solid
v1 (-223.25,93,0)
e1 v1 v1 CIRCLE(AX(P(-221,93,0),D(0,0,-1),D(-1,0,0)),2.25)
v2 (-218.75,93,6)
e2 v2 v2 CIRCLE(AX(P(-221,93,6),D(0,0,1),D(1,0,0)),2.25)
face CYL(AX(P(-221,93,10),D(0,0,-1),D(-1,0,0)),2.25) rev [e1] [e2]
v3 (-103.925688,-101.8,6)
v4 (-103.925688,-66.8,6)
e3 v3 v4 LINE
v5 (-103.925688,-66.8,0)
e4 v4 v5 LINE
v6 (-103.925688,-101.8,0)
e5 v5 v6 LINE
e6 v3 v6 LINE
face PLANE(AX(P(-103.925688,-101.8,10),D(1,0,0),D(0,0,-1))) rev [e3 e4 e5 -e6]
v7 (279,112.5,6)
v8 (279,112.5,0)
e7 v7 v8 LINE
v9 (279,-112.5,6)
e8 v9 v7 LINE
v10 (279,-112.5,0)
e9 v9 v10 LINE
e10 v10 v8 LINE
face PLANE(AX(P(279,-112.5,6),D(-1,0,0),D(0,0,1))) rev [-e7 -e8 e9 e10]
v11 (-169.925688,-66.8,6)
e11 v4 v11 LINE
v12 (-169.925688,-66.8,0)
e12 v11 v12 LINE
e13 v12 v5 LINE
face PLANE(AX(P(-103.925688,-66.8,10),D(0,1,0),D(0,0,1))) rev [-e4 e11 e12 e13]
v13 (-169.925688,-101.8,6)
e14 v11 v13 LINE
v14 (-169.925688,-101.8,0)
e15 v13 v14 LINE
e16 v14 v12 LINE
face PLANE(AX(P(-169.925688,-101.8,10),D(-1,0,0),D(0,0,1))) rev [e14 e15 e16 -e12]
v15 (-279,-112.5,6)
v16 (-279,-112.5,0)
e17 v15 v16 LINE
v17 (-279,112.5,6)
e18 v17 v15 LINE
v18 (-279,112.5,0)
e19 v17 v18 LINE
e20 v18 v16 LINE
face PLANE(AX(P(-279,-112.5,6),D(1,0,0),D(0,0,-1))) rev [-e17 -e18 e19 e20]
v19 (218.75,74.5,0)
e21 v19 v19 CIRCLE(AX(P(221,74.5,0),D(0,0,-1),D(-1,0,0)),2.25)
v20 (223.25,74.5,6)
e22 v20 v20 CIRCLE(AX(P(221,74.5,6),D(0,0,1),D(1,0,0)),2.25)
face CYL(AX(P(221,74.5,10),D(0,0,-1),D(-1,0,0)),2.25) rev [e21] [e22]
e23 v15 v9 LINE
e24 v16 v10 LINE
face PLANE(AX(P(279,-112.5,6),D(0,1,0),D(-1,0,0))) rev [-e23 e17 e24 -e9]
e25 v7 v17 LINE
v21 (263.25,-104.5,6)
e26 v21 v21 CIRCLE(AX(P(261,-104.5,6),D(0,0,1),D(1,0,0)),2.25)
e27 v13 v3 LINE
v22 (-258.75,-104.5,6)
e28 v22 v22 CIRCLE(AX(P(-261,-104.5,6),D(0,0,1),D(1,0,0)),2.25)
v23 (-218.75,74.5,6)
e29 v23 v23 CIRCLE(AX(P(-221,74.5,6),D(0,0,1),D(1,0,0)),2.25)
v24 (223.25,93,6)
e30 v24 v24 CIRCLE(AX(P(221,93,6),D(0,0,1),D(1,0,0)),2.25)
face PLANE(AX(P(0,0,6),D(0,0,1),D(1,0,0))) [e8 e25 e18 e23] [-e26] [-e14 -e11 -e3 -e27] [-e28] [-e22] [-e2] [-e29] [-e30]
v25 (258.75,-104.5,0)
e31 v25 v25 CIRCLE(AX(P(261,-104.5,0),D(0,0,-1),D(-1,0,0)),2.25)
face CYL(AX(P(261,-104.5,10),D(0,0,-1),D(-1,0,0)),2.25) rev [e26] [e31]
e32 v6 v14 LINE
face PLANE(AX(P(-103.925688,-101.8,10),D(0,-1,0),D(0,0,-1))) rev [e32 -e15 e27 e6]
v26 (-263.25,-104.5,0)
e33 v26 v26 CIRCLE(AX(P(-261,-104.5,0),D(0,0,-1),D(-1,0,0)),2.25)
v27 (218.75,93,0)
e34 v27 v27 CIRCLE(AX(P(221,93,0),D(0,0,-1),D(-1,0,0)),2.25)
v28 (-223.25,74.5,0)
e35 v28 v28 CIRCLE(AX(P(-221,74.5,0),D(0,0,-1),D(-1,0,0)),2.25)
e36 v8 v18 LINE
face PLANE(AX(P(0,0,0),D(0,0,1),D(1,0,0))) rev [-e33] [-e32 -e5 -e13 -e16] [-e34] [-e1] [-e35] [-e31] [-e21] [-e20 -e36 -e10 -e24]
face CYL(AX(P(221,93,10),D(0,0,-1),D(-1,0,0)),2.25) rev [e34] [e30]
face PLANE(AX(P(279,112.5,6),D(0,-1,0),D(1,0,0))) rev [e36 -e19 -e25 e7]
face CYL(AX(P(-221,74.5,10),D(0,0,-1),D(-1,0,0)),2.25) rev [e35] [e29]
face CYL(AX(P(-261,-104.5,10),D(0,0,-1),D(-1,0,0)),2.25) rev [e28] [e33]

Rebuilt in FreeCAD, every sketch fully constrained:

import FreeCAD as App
import Part
import Sketcher

V = App.Vector
Q = App.Units.Quantity


def add_polygon(sketch, points):
    """Adds a closed chain of lines whose ends are joined by coincident constraints."""
    first, n = sketch.GeometryCount, len(points)
    for a, b in zip(points, points[1:] + points[:1]):
        sketch.addGeometry(Part.LineSegment(App.Vector(*a, 0), App.Vector(*b, 0)), False)
    for i in range(n):
        sketch.addConstraint(Sketcher.Constraint("Coincident", first + i, 2, first + (i + 1) % n, 1))

doc = App.newDocument("Part")
body = doc.addObject("PartDesign::Body", "Body")

# Sketch on XY plane
sketch1 = body.newObject("Sketcher::SketchObject", "Sketch")
sketch1.AttachmentSupport = (doc.getObject("XY_Plane"), [""])
sketch1.MapMode = "FlatFace"
add_polygon(sketch1, [(-279, 112), (-279, -112), (279, -112), (279, 112)])  # lines 0-3
sketch1.addConstraint(Sketcher.Constraint("Vertical", 0))
sketch1.addConstraint(Sketcher.Constraint("Horizontal", 1))
sketch1.addConstraint(Sketcher.Constraint("Vertical", 2))
sketch1.addConstraint(Sketcher.Constraint("Horizontal", 3))
sketch1.addConstraint(Sketcher.Constraint("Symmetric", 0, 2, 2, 2, -1, 1))
sketch1.addConstraint(Sketcher.Constraint("DistanceX", 1, 1, 1, 2, Q("558 mm")))
sketch1.addConstraint(Sketcher.Constraint("DistanceY", 0, 2, 0, 1, Q("225 mm")))
pad1 = body.newObject("PartDesign::Pad", "Pad")
pad1.Profile = sketch1
pad1.Length = 6

# Sketch on XY plane
sketch2 = body.newObject("Sketcher::SketchObject", "Sketch001")
sketch2.AttachmentSupport = (doc.getObject("XY_Plane"), [""])
sketch2.MapMode = "FlatFace"
sketch2.addGeometry(Part.Circle(V(221, 93, 0), V(0, 0, 1), 2.2), False)  # 0
sketch2.addGeometry(Part.Circle(V(221, 74.5, 0), V(0, 0, 1), 2.2), False)  # 1
sketch2.addGeometry(Part.Circle(V(-221, 93, 0), V(0, 0, 1), 2.2), False)  # 2
sketch2.addGeometry(Part.Circle(V(-221, 74.5, 0), V(0, 0, 1), 2.2), False)  # 3
sketch2.addGeometry(Part.Circle(V(261, -104.5, 0), V(0, 0, 1), 2.2), False)  # 4
sketch2.addGeometry(Part.Circle(V(-261, -104.5, 0), V(0, 0, 1), 2.2), False)  # 5
add_polygon(sketch2, [(-103.9, -66.8), (-103.9, -101.8), (-169.9, -101.8), (-169.9, -66.8)])  # lines 6-9
sketch2.addConstraint(Sketcher.Constraint("Vertical", 6))
sketch2.addConstraint(Sketcher.Constraint("Horizontal", 7))
sketch2.addConstraint(Sketcher.Constraint("Vertical", 8))
sketch2.addConstraint(Sketcher.Constraint("Horizontal", 9))
sketch2.addConstraint(Sketcher.Constraint("Equal", 0, 1))
sketch2.addConstraint(Sketcher.Constraint("Equal", 1, 2))
sketch2.addConstraint(Sketcher.Constraint("Equal", 2, 3))
sketch2.addConstraint(Sketcher.Constraint("Equal", 3, 4))
sketch2.addConstraint(Sketcher.Constraint("Equal", 4, 5))
sketch2.addConstraint(Sketcher.Constraint("Symmetric", 0, 3, 2, 3, -2))
sketch2.addConstraint(Sketcher.Constraint("Symmetric", 1, 3, 3, 3, -2))
sketch2.addConstraint(Sketcher.Constraint("Symmetric", 4, 3, 5, 3, -2))
sketch2.addConstraint(Sketcher.Constraint("Vertical", 0, 3, 1, 3))
sketch2.addConstraint(Sketcher.Constraint("Diameter", 0, Q("4.5 mm")))
sketch2.addConstraint(Sketcher.Constraint("DistanceX", 7, 2, 7, 1, Q("66 mm")))
sketch2.addConstraint(Sketcher.Constraint("DistanceY", 6, 2, 6, 1, Q("35 mm")))
sketch2.addConstraint(Sketcher.Constraint("DistanceX", -1, 1, 0, 3, Q("221 mm")))
sketch2.addConstraint(Sketcher.Constraint("DistanceY", -1, 1, 0, 3, Q("93 mm")))
sketch2.addConstraint(Sketcher.Constraint("DistanceX", -1, 1, 4, 3, Q("261 mm")))
sketch2.addConstraint(Sketcher.Constraint("DistanceY", 4, 3, 1, 3, Q("179 mm")))
sketch2.addConstraint(Sketcher.Constraint("DistanceY", -1, 1, 1, 3, Q("74.5 mm")))
sketch2.addConstraint(Sketcher.Constraint("DistanceY", 6, 2, -1, 1, Q("101.8 mm")))
sketch2.addConstraint(Sketcher.Constraint("DistanceX", 7, 2, -1, 1, Q("169.925688 mm")))
pocket1 = body.newObject("PartDesign::Pocket", "Pocket")
pocket1.Profile = sketch2
pocket1.Length = 10
pocket1.Reversed = True

doc.recompute()
